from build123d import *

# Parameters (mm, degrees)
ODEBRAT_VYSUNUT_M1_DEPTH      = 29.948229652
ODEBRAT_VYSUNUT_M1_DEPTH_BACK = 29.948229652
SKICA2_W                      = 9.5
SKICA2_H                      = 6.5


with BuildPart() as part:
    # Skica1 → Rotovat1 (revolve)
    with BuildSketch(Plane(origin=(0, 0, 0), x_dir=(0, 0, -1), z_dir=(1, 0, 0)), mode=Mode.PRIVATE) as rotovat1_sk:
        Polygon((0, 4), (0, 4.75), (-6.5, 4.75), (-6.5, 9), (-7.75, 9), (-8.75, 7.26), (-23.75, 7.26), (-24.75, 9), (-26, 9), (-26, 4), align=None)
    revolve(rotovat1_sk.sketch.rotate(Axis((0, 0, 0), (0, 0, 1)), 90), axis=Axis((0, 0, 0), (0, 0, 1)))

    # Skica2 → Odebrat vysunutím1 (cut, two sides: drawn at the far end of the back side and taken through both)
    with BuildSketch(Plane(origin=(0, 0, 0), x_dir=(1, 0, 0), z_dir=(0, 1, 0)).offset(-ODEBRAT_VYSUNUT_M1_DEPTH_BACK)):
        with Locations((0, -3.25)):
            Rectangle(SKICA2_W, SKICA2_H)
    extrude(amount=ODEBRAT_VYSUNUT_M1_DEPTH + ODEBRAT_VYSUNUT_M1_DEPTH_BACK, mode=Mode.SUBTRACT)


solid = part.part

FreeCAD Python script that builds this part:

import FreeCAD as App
import Part
import Sketcher

V = App.Vector


def add_polygon(sketch, points):
    """Adds a closed chain of lines whose ends are joined by coincident constraints."""
    first, n = sketch.GeometryCount, len(points)
    for a, b in zip(points, points[1:] + points[:1]):
        sketch.addGeometry(Part.LineSegment(App.Vector(*a, 0), App.Vector(*b, 0)), False)
    for i in range(n):
        sketch.addConstraint(Sketcher.Constraint("Coincident", first + i, 2, first + (i + 1) % n, 1))

doc = App.newDocument("Part")
body = doc.addObject("PartDesign::Body", "Body")

# Sketch on YZ plane
sketch1 = body.newObject("Sketcher::SketchObject", "Sketch")
sketch1.AttachmentSupport = (doc.getObject("YZ_Plane"), [""])
sketch1.MapMode = "FlatFace"
add_polygon(sketch1, [(4, 0), (4.75, 0), (4.75, 6.5), (9, 6.5), (9, 7.75), (7.26, 8.75), (7.26, 23.75), (9, 24.75), (9, 26), (4, 26)])  # lines 0-9
sketch1.addConstraint(Sketcher.Constraint("Horizontal", 0))
sketch1.addConstraint(Sketcher.Constraint("Vertical", 1))
sketch1.addConstraint(Sketcher.Constraint("Horizontal", 2))
sketch1.addConstraint(Sketcher.Constraint("Vertical", 3))
sketch1.addConstraint(Sketcher.Constraint("Vertical", 5))
sketch1.addConstraint(Sketcher.Constraint("Vertical", 7))
sketch1.addConstraint(Sketcher.Constraint("Horizontal", 8))
sketch1.addConstraint(Sketcher.Constraint("Vertical", 9))
sketch1.addConstraint(Sketcher.Constraint("PointOnObject", 0, 2, -1))
sketch1.addConstraint(Sketcher.Constraint("Vertical", 3, 2, 6, 2))
sketch1.addConstraint(Sketcher.Constraint("Equal", 3, 7))
sketch1.addConstraint(Sketcher.Constraint("Equal", 4, 6))
sketch1.addConstraint(Sketcher.Constraint("DistanceX", 8, 2, 8, 1, 5.0))
sketch1.addConstraint(Sketcher.Constraint("DistanceY", 5, 1, 5, 2, 15.0))
sketch1.addConstraint(Sketcher.Constraint("DistanceY", 9, 2, 9, 1, 26.0))
sketch1.addConstraint(Sketcher.Constraint("DistanceY", 1, 1, 1, 2, 6.5))
sketch1.addConstraint(Sketcher.Constraint("DistanceX", -1, 1, 2, 2, 9.0))
sketch1.addConstraint(Sketcher.Constraint("DistanceY", 3, 2, 4, 2, 1.0))
sketch1.addConstraint(Sketcher.Constraint("DistanceX", 0, 1, 0, 2, 0.75))
sketch1.addConstraint(Sketcher.Constraint("DistanceX", -1, 1, 4, 2, 7.26))
revolution = body.newObject("PartDesign::Revolution", "Revolution")
revolution.Profile = sketch1
revolution.ReferenceAxis = (sketch1, ["V_Axis"])
revolution.Angle = 360

# Sketch on XZ plane
sketch2 = body.newObject("Sketcher::SketchObject", "Sketch001")
sketch2.AttachmentSupport = (doc.getObject("XZ_Plane"), [""])
sketch2.MapMode = "FlatFace"
add_polygon(sketch2, [(-4.75, 0), (-4.75, 6.5), (4.75, 6.5), (4.75, 0)])  # lines 0-3
sketch2.addConstraint(Sketcher.Constraint("Vertical", 0))
sketch2.addConstraint(Sketcher.Constraint("Horizontal", 1))
sketch2.addConstraint(Sketcher.Constraint("Vertical", 2))
sketch2.addConstraint(Sketcher.Constraint("Horizontal", 3))
sketch2.addConstraint(Sketcher.Constraint("Symmetric", 2, 2, 3, 2, -1, 1))
sketch2.addConstraint(Sketcher.Constraint("DistanceX", 1, 1, 1, 2, 9.5))
sketch2.addConstraint(Sketcher.Constraint("DistanceY", 0, 1, 0, 2, 6.5))
pocket1 = body.newObject("PartDesign::Pocket", "Pocket")
pocket1.Profile = sketch2
pocket1.Type = "ThroughAll"
pocket1.Midplane = True

doc.recompute()
